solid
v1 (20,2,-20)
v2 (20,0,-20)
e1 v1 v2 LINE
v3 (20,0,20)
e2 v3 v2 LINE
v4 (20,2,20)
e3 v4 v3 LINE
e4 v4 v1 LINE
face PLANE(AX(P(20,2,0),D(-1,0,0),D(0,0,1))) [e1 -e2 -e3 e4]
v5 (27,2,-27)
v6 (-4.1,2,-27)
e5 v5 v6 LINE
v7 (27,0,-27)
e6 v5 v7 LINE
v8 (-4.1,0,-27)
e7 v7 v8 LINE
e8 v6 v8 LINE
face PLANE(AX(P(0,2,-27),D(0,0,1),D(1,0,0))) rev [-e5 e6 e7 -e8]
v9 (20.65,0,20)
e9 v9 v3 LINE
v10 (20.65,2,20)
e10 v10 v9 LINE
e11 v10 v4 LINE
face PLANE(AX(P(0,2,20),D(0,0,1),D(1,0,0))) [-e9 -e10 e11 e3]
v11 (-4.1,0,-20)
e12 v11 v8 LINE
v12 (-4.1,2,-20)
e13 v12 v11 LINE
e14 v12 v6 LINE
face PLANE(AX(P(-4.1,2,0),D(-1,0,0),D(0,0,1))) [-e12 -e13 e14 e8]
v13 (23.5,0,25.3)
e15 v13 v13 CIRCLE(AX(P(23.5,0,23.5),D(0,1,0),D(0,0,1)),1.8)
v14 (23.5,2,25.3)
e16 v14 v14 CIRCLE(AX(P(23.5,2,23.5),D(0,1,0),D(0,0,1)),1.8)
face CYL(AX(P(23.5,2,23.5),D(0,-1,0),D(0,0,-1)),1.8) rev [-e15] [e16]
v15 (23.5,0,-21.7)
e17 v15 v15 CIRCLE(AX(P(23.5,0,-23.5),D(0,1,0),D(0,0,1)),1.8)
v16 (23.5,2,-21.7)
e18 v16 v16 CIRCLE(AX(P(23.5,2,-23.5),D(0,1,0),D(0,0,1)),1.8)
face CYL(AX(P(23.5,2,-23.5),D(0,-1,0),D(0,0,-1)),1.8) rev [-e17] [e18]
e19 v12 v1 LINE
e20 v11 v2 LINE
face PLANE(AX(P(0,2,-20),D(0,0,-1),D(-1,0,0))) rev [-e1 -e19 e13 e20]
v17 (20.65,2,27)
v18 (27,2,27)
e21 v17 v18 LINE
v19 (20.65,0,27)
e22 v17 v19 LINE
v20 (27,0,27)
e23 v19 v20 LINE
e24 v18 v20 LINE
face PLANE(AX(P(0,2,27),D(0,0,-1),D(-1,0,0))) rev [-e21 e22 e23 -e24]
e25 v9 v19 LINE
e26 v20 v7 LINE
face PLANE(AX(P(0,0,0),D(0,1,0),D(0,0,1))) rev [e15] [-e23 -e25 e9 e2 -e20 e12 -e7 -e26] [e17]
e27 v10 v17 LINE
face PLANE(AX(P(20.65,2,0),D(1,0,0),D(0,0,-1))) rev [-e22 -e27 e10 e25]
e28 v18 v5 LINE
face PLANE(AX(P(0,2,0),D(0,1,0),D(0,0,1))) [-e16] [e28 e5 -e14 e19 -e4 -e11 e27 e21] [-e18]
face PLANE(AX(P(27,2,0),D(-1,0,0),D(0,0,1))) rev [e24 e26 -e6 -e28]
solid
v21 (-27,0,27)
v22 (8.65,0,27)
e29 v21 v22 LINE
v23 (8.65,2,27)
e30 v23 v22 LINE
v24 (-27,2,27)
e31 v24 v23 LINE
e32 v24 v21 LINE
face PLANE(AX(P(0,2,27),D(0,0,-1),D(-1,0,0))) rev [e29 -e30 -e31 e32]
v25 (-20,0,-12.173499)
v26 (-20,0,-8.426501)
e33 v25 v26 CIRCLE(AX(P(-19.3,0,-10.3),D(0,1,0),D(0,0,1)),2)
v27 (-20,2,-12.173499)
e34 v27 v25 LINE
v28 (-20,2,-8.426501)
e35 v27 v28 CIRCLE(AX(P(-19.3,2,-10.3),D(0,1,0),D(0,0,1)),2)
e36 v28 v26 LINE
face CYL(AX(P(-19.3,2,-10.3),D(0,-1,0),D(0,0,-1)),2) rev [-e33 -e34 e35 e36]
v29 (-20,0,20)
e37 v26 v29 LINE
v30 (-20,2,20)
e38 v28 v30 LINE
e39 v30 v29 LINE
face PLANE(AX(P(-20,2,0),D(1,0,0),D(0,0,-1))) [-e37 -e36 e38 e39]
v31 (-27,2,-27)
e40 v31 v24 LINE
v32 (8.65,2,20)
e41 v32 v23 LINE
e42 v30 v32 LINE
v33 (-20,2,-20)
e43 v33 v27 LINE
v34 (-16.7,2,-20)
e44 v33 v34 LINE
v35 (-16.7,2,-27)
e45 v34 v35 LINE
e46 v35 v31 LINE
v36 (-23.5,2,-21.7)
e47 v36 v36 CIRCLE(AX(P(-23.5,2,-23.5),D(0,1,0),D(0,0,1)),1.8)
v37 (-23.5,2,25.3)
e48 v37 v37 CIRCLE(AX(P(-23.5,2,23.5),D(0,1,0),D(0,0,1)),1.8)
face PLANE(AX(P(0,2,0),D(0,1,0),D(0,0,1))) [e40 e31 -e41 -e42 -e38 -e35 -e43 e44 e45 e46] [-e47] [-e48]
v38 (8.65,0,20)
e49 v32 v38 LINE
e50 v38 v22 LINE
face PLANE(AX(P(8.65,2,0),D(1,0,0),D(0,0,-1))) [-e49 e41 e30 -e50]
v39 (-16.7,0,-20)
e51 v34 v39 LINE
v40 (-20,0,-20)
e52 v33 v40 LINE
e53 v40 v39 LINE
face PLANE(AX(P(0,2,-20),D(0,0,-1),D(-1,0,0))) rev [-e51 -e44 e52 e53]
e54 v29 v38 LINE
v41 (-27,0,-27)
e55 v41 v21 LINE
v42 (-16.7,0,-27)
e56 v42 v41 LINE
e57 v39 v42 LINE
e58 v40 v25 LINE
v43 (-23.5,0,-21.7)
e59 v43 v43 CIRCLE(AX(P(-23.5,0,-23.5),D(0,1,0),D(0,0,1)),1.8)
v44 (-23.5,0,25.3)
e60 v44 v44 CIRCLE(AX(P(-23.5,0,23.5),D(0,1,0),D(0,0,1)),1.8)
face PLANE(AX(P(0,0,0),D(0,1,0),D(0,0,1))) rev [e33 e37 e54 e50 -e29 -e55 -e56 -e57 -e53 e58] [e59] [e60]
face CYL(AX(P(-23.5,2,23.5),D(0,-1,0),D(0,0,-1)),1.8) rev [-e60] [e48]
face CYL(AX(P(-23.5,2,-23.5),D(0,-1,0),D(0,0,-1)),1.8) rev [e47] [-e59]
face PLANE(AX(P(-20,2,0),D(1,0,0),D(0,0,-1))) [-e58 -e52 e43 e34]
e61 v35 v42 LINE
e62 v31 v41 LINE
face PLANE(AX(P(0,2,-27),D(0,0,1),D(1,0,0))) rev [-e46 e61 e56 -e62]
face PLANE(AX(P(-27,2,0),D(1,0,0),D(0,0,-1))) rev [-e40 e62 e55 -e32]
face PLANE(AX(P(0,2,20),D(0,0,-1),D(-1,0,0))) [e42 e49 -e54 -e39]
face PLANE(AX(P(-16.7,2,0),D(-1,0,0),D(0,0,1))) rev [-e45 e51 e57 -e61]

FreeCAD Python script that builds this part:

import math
import FreeCAD as App
import Part
import Sketcher
from FreeCAD import Vector
Q = App.Units.Quantity

doc = App.newDocument("Part")
params = doc.addObject("Spreadsheet::Sheet", "Params")
for row, (alias, value) in enumerate([
    ("sketch1_radius", "2 mm"),
    ("sketch1_diameter", "3.6 mm"),
    ("sketch1_height", "7 mm"),
    ("sketch1_height2", "54 mm"),
    ("sketch1_width", "3.3 mm"),
    ("pad1_length", "2 mm"),
    ("sketch2_diameter", "3.6 mm"),
    ("sketch2_height", "40 mm"),
    ("sketch2_height2", "7 mm"),
    ("sketch2_width", "31.1 mm"),
    ("sketch2_width2", "24.1 mm"),
    ("pad2_length", "2 mm"),
], start=1):
    params.set(f"A{row}", alias)
    params.set(f"B{row}", "=" + value)
    params.setAlias(f"B{row}", alias)

body = doc.addObject("PartDesign::Body", "Body")

# Sketch on XZ plane
sketch1 = doc.addObject("Sketcher::SketchObject", "Sketch")
body.addObject(sketch1)
sketch1.AttachmentSupport = (doc.XZ_Plane, [""])
sketch1.MapMode = "FlatFace"
sketch1.addGeometry(Part.LineSegment(Vector(-27, 27, 0), Vector(8.7, 27, 0)), False)
sketch1.addGeometry(Part.LineSegment(Vector(8.7, 27, 0), Vector(8.7, 20, 0)), False)
sketch1.addGeometry(Part.LineSegment(Vector(8.7, 20, 0), Vector(-20, 20, 0)), False)
sketch1.addGeometry(Part.LineSegment(Vector(-20, 20, 0), Vector(-20, -8.4, 0)), False)
sketch1.addGeometry(Part.ArcOfCircle(Part.Circle(Vector(-19.3, -10.3, 0), Vector(0, 0, 1), 2), math.radians(110), math.radians(250)), False)
sketch1.addGeometry(Part.LineSegment(Vector(-20, -12.2, 0), Vector(-20, -20, 0)), False)
sketch1.addGeometry(Part.LineSegment(Vector(-20, -20, 0), Vector(-16.7, -20, 0)), False)
sketch1.addGeometry(Part.LineSegment(Vector(-16.7, -20, 0), Vector(-16.7, -27, 0)), False)
sketch1.addGeometry(Part.LineSegment(Vector(-16.7, -27, 0), Vector(-27, -27, 0)), False)
sketch1.addGeometry(Part.LineSegment(Vector(-27, -27, 0), Vector(-27, 27, 0)), False)
sketch1.addGeometry(Part.Circle(Vector(-23.5, 23.5, 0), Vector(0, 0, 1), 1.8), False)
sketch1.addGeometry(Part.Circle(Vector(-23.5, -23.5, 0), Vector(0, 0, 1), 1.8), False)
sketch1.addConstraint(Sketcher.Constraint("Coincident", 0, 2, 1, 1))
sketch1.addConstraint(Sketcher.Constraint("Coincident", 1, 2, 2, 1))
sketch1.addConstraint(Sketcher.Constraint("Coincident", 2, 2, 3, 1))
sketch1.addConstraint(Sketcher.Constraint("Coincident", 3, 2, 4, 1))
sketch1.addConstraint(Sketcher.Constraint("Coincident", 4, 2, 5, 1))
sketch1.addConstraint(Sketcher.Constraint("Coincident", 5, 2, 6, 1))
sketch1.addConstraint(Sketcher.Constraint("Coincident", 6, 2, 7, 1))
sketch1.addConstraint(Sketcher.Constraint("Coincident", 7, 2, 8, 1))
sketch1.addConstraint(Sketcher.Constraint("Coincident", 8, 2, 9, 1))
sketch1.addConstraint(Sketcher.Constraint("Coincident", 9, 2, 0, 1))
sketch1.addConstraint(Sketcher.Constraint("Horizontal", 0))
sketch1.addConstraint(Sketcher.Constraint("Vertical", 1))
sketch1.addConstraint(Sketcher.Constraint("Horizontal", 2))
sketch1.addConstraint(Sketcher.Constraint("Vertical", 3))
sketch1.addConstraint(Sketcher.Constraint("Vertical", 5))
sketch1.addConstraint(Sketcher.Constraint("Horizontal", 6))
sketch1.addConstraint(Sketcher.Constraint("Vertical", 7))
sketch1.addConstraint(Sketcher.Constraint("Horizontal", 8))
sketch1.addConstraint(Sketcher.Constraint("Vertical", 9))
sketch1.addConstraint(Sketcher.Constraint("Equal", 10, 11))
sketch1.addConstraint(Sketcher.Constraint("Symmetric", 10, 3, 11, 3, -1))
sketch1.addConstraint(Sketcher.Constraint("Symmetric", 2, 2, 5, 2, -1))
sketch1.addConstraint(Sketcher.Constraint("Equal", 1, 7))
sketch1.addConstraint(Sketcher.Constraint("Radius", 4, Q("2 mm")))
sketch1.addConstraint(Sketcher.Constraint("Diameter", 10, Q("3.6 mm")))
sketch1.addConstraint(Sketcher.Constraint("DistanceY", 1, 2, 1, 1, Q("7 mm")))
sketch1.addConstraint(Sketcher.Constraint("DistanceY", 9, 1, 9, 2, Q("54 mm")))
sketch1.addConstraint(Sketcher.Constraint("DistanceX", 6, 1, 6, 2, Q("3.3 mm")))
sketch1.addConstraint(Sketcher.Constraint("DistanceX", 8, 2, 8, 1, Q("10.3 mm")))
sketch1.addConstraint(Sketcher.Constraint("DistanceX", 2, 2, -1, 1, Q("20 mm")))
sketch1.addConstraint(Sketcher.Constraint("DistanceY", 11, 3, 10, 3, Q("47 mm")))
sketch1.addConstraint(Sketcher.Constraint("DistanceX", 0, 1, 0, 2, Q("35.65 mm")))
sketch1.addConstraint(Sketcher.Constraint("DistanceX", 4, 3, -1, 1, Q("19.3 mm")))
sketch1.addConstraint(Sketcher.Constraint("DistanceY", 4, 3, -1, 1, Q("10.3 mm")))
sketch1.addConstraint(Sketcher.Constraint("DistanceX", 10, 3, -1, 1, Q("23.5 mm")))
sketch1.setExpression("Constraints[23]", "Params.sketch1_radius")
sketch1.setExpression("Constraints[24]", "Params.sketch1_diameter")
sketch1.setExpression("Constraints[25]", "Params.sketch1_height")
sketch1.setExpression("Constraints[26]", "Params.sketch1_height2")
sketch1.setExpression("Constraints[27]", "Params.sketch1_width")
pad1 = doc.addObject("PartDesign::Pad", "Pad")
body.addObject(pad1)
pad1.Profile = sketch1
pad1.setExpression("Length", "Params.pad1_length")
pad1.Reversed = True
body2 = doc.addObject("PartDesign::Body", "Body001")

# Sketch on XZ plane
sketch2 = doc.addObject("Sketcher::SketchObject", "Sketch001")
body2.addObject(sketch2)
sketch2.AttachmentSupport = (doc.getObject("XZ_Plane001"), [""])
sketch2.MapMode = "FlatFace"
sketch2.addGeometry(Part.LineSegment(Vector(20, -20, 0), Vector(20, 20, 0)), False)
sketch2.addGeometry(Part.LineSegment(Vector(20, 20, 0), Vector(20.6, 20, 0)), False)
sketch2.addGeometry(Part.LineSegment(Vector(20.6, 20, 0), Vector(20.6, 27, 0)), False)
sketch2.addGeometry(Part.LineSegment(Vector(20.6, 27, 0), Vector(27, 27, 0)), False)
sketch2.addGeometry(Part.LineSegment(Vector(27, 27, 0), Vector(27, -27, 0)), False)
sketch2.addGeometry(Part.LineSegment(Vector(27, -27, 0), Vector(-4.1, -27, 0)), False)
sketch2.addGeometry(Part.LineSegment(Vector(-4.1, -27, 0), Vector(-4.1, -20, 0)), False)
sketch2.addGeometry(Part.LineSegment(Vector(-4.1, -20, 0), Vector(20, -20, 0)), False)
sketch2.addGeometry(Part.Circle(Vector(23.5, 23.5, 0), Vector(0, 0, 1), 1.8), False)
sketch2.addGeometry(Part.Circle(Vector(23.5, -23.5, 0), Vector(0, 0, 1), 1.8), False)
sketch2.addConstraint(Sketcher.Constraint("Coincident", 0, 2, 1, 1))
sketch2.addConstraint(Sketcher.Constraint("Coincident", 1, 2, 2, 1))
sketch2.addConstraint(Sketcher.Constraint("Coincident", 2, 2, 3, 1))
sketch2.addConstraint(Sketcher.Constraint("Coincident", 3, 2, 4, 1))
sketch2.addConstraint(Sketcher.Constraint("Coincident", 4, 2, 5, 1))
sketch2.addConstraint(Sketcher.Constraint("Coincident", 5, 2, 6, 1))
sketch2.addConstraint(Sketcher.Constraint("Coincident", 6, 2, 7, 1))
sketch2.addConstraint(Sketcher.Constraint("Coincident", 7, 2, 0, 1))
sketch2.addConstraint(Sketcher.Constraint("Vertical", 0))
sketch2.addConstraint(Sketcher.Constraint("Horizontal", 1))
sketch2.addConstraint(Sketcher.Constraint("Vertical", 2))
sketch2.addConstraint(Sketcher.Constraint("Horizontal", 3))
sketch2.addConstraint(Sketcher.Constraint("Vertical", 4))
sketch2.addConstraint(Sketcher.Constraint("Horizontal", 5))
sketch2.addConstraint(Sketcher.Constraint("Vertical", 6))
sketch2.addConstraint(Sketcher.Constraint("Horizontal", 7))
sketch2.addConstraint(Sketcher.Constraint("Equal", 8, 9))
sketch2.addConstraint(Sketcher.Constraint("Symmetric", 8, 3, 9, 3, -1))
sketch2.addConstraint(Sketcher.Constraint("Equal", 2, 6))
sketch2.addConstraint(Sketcher.Constraint("Diameter", 8, Q("3.6 mm")))
sketch2.addConstraint(Sketcher.Constraint("DistanceY", 0, 1, 0, 2, Q("40 mm")))
sketch2.addConstraint(Sketcher.Constraint("DistanceY", 2, 1, 2, 2, Q("7 mm")))
sketch2.addConstraint(Sketcher.Constraint("DistanceX", 5, 2, 5, 1, Q("31.1 mm")))
sketch2.addConstraint(Sketcher.Constraint("DistanceX", 7, 1, 7, 2, Q("24.1 mm")))
sketch2.addConstraint(Sketcher.Constraint("DistanceX", -1, 1, 0, 2, Q("20 mm")))
sketch2.addConstraint(Sketcher.Constraint("DistanceY", -1, 1, 0, 2, Q("20 mm")))
sketch2.addConstraint(Sketcher.Constraint("DistanceY", 9, 3, 8, 3, Q("47 mm")))
sketch2.addConstraint(Sketcher.Constraint("DistanceX", 1, 1, 1, 2, Q("0.65 mm")))
sketch2.addConstraint(Sketcher.Constraint("DistanceX", -1, 1, 8, 3, Q("23.5 mm")))
sketch2.setExpression("Constraints[19]", "Params.sketch2_diameter")
sketch2.setExpression("Constraints[20]", "Params.sketch2_height")
sketch2.setExpression("Constraints[21]", "Params.sketch2_height2")
sketch2.setExpression("Constraints[22]", "Params.sketch2_width")
sketch2.setExpression("Constraints[23]", "Params.sketch2_width2")
pad2 = doc.addObject("PartDesign::Pad", "Pad001")
body2.addObject(pad2)
pad2.Profile = sketch2
pad2.setExpression("Length", "Params.pad2_length")
pad2.Reversed = True

doc.recompute()
